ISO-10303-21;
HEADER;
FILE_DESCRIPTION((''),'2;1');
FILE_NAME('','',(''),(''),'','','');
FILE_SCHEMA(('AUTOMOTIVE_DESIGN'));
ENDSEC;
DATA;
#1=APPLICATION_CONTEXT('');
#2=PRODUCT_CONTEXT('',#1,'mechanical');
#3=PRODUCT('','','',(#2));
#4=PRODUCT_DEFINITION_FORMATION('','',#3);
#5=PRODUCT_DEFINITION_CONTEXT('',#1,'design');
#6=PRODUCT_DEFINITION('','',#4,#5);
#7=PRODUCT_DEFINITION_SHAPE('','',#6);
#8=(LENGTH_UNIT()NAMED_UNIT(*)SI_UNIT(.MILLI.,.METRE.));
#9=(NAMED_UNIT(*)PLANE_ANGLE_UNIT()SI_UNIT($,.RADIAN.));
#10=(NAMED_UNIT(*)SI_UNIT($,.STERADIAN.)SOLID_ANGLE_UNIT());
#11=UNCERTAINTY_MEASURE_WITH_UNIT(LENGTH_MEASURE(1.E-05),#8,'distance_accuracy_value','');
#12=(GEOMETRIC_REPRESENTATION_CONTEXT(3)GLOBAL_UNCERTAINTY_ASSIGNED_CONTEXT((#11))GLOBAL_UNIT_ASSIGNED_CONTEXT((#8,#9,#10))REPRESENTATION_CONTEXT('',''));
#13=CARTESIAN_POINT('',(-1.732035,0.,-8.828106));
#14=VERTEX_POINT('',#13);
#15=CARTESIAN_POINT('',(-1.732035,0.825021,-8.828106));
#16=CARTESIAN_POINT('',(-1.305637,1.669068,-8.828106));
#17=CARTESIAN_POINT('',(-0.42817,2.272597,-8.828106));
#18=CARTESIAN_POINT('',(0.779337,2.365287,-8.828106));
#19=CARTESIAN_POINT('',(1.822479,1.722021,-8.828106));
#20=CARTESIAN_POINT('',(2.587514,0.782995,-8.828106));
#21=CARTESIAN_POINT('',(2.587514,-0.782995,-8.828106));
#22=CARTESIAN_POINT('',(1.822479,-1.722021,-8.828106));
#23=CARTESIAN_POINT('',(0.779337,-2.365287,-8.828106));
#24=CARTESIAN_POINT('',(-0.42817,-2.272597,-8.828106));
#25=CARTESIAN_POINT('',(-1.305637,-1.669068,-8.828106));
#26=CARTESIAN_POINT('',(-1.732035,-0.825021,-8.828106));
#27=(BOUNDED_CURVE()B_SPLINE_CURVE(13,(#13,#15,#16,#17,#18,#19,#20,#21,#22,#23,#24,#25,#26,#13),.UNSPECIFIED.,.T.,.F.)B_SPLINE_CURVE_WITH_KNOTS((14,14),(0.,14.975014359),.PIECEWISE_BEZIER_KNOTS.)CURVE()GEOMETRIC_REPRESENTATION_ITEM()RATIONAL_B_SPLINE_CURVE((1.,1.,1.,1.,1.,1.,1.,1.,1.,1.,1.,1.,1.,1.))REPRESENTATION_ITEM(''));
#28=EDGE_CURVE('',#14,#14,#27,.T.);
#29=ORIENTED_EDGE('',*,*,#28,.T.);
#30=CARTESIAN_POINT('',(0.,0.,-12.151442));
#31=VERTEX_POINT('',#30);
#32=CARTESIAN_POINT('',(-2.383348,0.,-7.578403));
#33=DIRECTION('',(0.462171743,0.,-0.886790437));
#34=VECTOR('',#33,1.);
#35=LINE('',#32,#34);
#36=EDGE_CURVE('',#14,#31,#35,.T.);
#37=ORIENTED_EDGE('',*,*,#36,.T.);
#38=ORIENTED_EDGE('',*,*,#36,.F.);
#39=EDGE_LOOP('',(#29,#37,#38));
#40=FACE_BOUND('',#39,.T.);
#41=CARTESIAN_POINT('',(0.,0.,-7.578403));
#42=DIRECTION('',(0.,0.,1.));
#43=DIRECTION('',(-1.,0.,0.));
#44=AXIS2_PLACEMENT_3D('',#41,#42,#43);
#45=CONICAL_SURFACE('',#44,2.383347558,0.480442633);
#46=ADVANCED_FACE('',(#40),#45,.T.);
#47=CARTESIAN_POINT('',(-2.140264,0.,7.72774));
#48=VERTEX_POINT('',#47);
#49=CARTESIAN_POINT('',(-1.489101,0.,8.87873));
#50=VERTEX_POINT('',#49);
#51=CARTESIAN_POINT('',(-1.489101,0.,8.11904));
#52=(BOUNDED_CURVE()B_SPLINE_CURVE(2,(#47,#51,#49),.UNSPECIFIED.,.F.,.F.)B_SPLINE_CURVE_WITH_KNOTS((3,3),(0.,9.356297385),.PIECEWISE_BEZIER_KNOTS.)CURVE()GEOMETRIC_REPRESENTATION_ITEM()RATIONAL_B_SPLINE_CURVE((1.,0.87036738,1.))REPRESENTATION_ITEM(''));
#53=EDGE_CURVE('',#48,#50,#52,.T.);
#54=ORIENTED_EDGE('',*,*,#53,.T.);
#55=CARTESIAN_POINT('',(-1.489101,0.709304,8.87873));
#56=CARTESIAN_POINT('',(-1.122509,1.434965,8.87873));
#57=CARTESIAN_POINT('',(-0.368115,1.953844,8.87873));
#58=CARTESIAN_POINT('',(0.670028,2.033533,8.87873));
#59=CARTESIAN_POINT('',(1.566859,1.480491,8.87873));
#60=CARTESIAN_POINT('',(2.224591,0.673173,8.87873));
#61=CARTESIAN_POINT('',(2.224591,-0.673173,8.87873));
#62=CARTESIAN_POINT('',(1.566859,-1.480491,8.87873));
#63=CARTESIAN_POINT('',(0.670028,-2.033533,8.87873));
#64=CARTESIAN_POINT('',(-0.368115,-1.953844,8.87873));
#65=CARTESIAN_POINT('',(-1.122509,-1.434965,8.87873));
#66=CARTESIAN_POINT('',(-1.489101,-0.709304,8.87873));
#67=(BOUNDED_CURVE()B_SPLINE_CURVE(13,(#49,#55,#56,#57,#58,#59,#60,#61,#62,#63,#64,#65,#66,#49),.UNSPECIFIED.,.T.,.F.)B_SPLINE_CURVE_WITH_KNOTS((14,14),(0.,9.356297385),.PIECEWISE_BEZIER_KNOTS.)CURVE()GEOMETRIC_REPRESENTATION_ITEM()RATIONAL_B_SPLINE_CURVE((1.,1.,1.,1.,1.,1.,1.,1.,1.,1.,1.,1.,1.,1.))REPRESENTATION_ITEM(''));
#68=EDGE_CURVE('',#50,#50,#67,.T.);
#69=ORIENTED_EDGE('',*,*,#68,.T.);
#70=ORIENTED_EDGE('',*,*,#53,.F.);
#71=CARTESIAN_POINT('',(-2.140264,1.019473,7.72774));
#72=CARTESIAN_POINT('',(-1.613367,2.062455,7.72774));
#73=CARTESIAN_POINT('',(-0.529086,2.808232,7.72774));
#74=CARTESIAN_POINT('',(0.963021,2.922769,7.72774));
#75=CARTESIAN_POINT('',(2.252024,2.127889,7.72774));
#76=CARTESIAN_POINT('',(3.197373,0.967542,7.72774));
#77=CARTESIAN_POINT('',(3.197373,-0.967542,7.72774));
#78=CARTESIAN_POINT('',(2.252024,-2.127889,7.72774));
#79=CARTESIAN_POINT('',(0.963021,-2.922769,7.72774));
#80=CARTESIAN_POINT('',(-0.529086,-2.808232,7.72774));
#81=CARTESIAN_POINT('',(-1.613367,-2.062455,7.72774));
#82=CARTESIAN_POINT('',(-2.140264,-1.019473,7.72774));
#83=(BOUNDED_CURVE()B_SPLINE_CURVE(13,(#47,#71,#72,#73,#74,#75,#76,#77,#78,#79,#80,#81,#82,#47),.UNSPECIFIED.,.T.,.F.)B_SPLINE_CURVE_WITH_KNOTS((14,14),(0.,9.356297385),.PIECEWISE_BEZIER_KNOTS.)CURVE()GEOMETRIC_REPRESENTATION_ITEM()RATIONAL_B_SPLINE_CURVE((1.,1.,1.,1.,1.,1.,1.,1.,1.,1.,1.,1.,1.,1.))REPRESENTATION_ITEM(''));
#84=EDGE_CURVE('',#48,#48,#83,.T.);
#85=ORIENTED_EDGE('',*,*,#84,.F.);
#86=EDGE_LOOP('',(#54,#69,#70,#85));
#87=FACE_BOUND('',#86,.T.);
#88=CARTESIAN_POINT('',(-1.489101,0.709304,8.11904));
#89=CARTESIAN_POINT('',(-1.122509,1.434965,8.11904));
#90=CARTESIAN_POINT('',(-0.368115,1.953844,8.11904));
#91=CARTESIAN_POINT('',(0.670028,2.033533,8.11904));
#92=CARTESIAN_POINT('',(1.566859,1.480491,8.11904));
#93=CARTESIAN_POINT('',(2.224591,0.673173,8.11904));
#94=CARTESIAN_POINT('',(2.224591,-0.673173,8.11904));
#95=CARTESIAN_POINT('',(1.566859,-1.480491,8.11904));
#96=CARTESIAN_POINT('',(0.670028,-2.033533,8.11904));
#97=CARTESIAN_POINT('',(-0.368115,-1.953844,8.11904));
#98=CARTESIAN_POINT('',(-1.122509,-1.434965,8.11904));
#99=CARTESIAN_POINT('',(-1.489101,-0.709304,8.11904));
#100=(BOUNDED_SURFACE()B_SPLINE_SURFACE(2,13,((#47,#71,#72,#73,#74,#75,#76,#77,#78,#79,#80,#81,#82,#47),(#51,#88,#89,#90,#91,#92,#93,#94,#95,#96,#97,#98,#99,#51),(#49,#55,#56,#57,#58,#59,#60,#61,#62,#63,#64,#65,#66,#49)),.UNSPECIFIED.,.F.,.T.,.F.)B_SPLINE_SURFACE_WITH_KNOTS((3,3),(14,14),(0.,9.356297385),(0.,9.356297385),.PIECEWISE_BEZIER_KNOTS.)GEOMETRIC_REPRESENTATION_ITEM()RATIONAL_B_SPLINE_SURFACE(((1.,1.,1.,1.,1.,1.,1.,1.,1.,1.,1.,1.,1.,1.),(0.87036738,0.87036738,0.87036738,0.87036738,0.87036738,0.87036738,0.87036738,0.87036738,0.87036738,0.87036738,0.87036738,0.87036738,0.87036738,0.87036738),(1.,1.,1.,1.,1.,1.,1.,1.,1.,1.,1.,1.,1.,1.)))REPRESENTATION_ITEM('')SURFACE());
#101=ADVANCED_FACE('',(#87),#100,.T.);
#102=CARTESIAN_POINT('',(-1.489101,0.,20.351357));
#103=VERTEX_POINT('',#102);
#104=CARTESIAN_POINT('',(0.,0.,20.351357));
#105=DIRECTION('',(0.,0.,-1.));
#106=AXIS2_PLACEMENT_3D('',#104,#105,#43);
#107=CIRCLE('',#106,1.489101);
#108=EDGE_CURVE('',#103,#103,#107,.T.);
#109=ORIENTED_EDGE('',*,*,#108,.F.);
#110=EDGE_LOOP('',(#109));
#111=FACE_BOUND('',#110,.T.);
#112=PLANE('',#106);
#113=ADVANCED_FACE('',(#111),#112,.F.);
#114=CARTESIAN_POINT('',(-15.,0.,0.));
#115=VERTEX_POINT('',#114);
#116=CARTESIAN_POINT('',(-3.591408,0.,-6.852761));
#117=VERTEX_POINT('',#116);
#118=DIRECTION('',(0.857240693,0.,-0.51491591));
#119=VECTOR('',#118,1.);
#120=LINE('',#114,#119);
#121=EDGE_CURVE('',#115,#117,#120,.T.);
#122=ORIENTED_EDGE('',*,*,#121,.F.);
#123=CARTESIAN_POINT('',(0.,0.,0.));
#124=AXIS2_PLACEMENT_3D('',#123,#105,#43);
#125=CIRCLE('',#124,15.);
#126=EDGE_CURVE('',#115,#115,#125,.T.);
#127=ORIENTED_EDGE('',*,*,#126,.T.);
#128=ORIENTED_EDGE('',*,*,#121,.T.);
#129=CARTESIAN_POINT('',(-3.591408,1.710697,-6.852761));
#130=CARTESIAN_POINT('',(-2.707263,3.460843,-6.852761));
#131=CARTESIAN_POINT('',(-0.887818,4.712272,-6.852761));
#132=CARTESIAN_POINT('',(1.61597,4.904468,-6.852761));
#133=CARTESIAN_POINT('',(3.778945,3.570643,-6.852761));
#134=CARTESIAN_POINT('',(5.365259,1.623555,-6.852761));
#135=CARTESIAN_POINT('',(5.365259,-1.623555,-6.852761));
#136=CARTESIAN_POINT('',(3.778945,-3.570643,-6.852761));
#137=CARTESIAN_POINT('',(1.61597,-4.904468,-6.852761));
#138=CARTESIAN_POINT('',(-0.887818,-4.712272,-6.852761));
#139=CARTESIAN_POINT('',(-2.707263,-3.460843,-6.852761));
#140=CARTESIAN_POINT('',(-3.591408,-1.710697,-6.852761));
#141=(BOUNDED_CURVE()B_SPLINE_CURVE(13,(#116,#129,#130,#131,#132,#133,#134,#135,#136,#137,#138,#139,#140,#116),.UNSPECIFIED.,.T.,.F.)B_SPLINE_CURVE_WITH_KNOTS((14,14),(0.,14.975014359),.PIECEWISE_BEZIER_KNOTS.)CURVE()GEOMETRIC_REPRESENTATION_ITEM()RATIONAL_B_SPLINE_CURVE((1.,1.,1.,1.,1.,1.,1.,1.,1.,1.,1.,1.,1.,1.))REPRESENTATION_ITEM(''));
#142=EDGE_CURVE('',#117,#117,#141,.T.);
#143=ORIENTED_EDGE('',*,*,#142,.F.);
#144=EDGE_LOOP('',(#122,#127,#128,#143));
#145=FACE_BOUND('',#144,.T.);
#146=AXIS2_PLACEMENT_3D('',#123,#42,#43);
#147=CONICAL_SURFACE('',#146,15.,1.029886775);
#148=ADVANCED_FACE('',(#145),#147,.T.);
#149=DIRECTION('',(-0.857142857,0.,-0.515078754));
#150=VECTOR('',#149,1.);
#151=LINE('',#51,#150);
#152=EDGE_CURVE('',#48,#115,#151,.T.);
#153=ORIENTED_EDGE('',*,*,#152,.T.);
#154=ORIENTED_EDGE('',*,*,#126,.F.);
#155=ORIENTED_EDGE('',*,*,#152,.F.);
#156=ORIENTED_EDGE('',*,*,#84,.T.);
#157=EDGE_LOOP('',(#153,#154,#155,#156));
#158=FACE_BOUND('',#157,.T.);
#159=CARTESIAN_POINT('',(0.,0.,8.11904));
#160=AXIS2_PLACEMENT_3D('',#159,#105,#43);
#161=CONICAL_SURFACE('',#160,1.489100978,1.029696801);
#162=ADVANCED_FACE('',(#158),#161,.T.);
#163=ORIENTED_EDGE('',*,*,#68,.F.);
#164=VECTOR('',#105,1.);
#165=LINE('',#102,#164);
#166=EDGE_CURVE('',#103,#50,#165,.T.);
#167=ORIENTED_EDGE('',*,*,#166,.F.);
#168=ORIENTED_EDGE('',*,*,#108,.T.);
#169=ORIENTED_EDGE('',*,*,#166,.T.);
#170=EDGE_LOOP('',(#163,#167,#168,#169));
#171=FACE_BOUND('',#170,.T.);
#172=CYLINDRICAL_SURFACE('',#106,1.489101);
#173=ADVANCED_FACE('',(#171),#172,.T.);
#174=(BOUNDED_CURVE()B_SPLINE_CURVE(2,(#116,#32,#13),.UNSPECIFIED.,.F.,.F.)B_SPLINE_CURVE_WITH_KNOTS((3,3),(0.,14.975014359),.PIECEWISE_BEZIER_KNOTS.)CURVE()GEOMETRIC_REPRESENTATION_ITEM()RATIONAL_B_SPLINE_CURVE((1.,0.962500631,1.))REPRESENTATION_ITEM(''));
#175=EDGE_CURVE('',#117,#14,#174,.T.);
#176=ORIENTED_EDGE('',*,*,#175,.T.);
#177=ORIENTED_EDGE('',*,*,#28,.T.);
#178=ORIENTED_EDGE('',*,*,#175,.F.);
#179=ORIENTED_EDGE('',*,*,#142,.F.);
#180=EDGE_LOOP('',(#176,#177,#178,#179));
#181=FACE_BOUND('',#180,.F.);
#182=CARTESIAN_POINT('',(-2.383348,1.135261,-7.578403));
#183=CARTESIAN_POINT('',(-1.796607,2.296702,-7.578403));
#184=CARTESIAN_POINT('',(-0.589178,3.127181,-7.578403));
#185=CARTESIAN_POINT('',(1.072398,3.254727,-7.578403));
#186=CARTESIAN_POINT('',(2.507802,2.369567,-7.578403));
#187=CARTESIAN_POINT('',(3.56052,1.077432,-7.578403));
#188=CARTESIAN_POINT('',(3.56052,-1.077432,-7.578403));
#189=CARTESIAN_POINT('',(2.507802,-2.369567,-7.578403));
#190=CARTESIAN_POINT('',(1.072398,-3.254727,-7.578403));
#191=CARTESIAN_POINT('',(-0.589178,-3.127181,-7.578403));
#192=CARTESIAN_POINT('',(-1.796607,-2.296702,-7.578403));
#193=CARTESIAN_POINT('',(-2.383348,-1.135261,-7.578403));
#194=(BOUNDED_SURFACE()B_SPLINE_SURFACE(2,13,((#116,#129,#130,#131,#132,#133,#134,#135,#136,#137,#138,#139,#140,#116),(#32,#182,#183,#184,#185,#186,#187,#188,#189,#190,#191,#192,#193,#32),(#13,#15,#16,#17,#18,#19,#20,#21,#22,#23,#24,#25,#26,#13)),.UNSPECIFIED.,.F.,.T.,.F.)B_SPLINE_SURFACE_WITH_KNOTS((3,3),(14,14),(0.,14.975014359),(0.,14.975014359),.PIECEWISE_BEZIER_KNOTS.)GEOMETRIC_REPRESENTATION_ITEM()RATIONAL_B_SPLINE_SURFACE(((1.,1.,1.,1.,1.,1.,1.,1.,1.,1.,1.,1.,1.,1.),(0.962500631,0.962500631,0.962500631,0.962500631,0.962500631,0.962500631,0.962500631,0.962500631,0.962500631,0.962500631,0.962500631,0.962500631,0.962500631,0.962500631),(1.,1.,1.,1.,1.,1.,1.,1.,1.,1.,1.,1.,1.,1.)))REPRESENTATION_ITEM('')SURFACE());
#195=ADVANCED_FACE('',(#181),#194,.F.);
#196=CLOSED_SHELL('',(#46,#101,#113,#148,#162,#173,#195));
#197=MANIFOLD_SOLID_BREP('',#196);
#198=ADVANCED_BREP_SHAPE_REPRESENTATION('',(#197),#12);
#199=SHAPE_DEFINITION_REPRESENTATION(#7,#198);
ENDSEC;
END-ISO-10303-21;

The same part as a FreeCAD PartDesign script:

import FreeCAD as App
import Part
import Sketcher

V = App.Vector


def edges_at(feature, points):
    """Names of the edges that pass closest to the given points."""
    edges = feature.Shape.Edges
    near = lambda p: min(range(len(edges)), key=lambda i: edges[i].distToShape(Part.Vertex(*p))[0])
    return sorted({f"Edge{near(p) + 1}" for p in points})

doc = App.newDocument("Part")
body = doc.addObject("PartDesign::Body", "Body")

# Sketch on XZ plane
sketch1 = body.newObject("Sketcher::SketchObject", "Sketch")
sketch1.AttachmentSupport = (doc.getObject("XZ_Plane"), [""])
sketch1.MapMode = "FlatFace"
sketch1.addGeometry(Part.LineSegment(V(-1.489101, 20.351357, 0), V(-1.489101, 8.11904, 0)), False)
sketch1.addGeometry(Part.LineSegment(V(-1.489101, 8.11904, 0), V(-15, 0, 0)), False)
sketch1.addGeometry(Part.LineSegment(V(-15, 0, 0), V(-2.383348, -7.578403, 0)), False)
sketch1.addGeometry(Part.LineSegment(V(-2.383348, -7.578403, 0), V(0, -12.151442, 0)), False)
sketch1.addGeometry(Part.LineSegment(V(0, -12.151442, 0), V(0, 20.351357, 0)), False)
sketch1.addGeometry(Part.LineSegment(V(0, 20.351357, 0), V(-1.489101, 20.351357, 0)), False)
sketch1.addConstraint(Sketcher.Constraint("Coincident", 0, 2, 1, 1))
sketch1.addConstraint(Sketcher.Constraint("Coincident", 1, 2, 2, 1))
sketch1.addConstraint(Sketcher.Constraint("Coincident", 2, 2, 3, 1))
sketch1.addConstraint(Sketcher.Constraint("Coincident", 3, 2, 4, 1))
sketch1.addConstraint(Sketcher.Constraint("Coincident", 4, 2, 5, 1))
sketch1.addConstraint(Sketcher.Constraint("Coincident", 5, 2, 0, 1))
sketch1.addConstraint(Sketcher.Constraint("Vertical", 0))
sketch1.addConstraint(Sketcher.Constraint("Vertical", 4))
sketch1.addConstraint(Sketcher.Constraint("Horizontal", 5))
sketch1.addConstraint(Sketcher.Constraint("PointOnObject", 1, 2, -1))
sketch1.addConstraint(Sketcher.Constraint("PointOnObject", 3, 2, -2))
sketch1.addConstraint(Sketcher.Constraint("DistanceX", 1, 2, -1, 1, 15.0))
sketch1.addConstraint(Sketcher.Constraint("DistanceX", 5, 2, 5, 1, 1.489101))
sketch1.addConstraint(Sketcher.Constraint("DistanceY", 4, 1, 4, 2, 32.502799))
sketch1.addConstraint(Sketcher.Constraint("DistanceY", 0, 2, 0, 1, 12.232317))
sketch1.addConstraint(Sketcher.Constraint("DistanceY", -1, 1, 0, 2, 8.11904))
sketch1.addConstraint(Sketcher.Constraint("DistanceY", 3, 2, 2, 2, 4.57304))
sketch1.addConstraint(Sketcher.Constraint("Distance", 2, 14.717748))
revolution = body.newObject("PartDesign::Revolution", "Revolution")
revolution.Profile = sketch1
revolution.ReferenceAxis = (sketch1, ["V_Axis"])
revolution.Angle = 360
doc.recompute()

fillet = body.newObject("PartDesign::Fillet", "Fillet")
fillet.Base = (revolution, edges_at(revolution, [(2.383, 0, -7.578)]))
fillet.Radius = 5
doc.recompute()

fillet2 = body.newObject("PartDesign::Fillet", "Fillet001")
fillet2.Base = (fillet, edges_at(fillet, [(1.489, 0, 8.119)]))
fillet2.Radius = 1.342822

doc.recompute()
